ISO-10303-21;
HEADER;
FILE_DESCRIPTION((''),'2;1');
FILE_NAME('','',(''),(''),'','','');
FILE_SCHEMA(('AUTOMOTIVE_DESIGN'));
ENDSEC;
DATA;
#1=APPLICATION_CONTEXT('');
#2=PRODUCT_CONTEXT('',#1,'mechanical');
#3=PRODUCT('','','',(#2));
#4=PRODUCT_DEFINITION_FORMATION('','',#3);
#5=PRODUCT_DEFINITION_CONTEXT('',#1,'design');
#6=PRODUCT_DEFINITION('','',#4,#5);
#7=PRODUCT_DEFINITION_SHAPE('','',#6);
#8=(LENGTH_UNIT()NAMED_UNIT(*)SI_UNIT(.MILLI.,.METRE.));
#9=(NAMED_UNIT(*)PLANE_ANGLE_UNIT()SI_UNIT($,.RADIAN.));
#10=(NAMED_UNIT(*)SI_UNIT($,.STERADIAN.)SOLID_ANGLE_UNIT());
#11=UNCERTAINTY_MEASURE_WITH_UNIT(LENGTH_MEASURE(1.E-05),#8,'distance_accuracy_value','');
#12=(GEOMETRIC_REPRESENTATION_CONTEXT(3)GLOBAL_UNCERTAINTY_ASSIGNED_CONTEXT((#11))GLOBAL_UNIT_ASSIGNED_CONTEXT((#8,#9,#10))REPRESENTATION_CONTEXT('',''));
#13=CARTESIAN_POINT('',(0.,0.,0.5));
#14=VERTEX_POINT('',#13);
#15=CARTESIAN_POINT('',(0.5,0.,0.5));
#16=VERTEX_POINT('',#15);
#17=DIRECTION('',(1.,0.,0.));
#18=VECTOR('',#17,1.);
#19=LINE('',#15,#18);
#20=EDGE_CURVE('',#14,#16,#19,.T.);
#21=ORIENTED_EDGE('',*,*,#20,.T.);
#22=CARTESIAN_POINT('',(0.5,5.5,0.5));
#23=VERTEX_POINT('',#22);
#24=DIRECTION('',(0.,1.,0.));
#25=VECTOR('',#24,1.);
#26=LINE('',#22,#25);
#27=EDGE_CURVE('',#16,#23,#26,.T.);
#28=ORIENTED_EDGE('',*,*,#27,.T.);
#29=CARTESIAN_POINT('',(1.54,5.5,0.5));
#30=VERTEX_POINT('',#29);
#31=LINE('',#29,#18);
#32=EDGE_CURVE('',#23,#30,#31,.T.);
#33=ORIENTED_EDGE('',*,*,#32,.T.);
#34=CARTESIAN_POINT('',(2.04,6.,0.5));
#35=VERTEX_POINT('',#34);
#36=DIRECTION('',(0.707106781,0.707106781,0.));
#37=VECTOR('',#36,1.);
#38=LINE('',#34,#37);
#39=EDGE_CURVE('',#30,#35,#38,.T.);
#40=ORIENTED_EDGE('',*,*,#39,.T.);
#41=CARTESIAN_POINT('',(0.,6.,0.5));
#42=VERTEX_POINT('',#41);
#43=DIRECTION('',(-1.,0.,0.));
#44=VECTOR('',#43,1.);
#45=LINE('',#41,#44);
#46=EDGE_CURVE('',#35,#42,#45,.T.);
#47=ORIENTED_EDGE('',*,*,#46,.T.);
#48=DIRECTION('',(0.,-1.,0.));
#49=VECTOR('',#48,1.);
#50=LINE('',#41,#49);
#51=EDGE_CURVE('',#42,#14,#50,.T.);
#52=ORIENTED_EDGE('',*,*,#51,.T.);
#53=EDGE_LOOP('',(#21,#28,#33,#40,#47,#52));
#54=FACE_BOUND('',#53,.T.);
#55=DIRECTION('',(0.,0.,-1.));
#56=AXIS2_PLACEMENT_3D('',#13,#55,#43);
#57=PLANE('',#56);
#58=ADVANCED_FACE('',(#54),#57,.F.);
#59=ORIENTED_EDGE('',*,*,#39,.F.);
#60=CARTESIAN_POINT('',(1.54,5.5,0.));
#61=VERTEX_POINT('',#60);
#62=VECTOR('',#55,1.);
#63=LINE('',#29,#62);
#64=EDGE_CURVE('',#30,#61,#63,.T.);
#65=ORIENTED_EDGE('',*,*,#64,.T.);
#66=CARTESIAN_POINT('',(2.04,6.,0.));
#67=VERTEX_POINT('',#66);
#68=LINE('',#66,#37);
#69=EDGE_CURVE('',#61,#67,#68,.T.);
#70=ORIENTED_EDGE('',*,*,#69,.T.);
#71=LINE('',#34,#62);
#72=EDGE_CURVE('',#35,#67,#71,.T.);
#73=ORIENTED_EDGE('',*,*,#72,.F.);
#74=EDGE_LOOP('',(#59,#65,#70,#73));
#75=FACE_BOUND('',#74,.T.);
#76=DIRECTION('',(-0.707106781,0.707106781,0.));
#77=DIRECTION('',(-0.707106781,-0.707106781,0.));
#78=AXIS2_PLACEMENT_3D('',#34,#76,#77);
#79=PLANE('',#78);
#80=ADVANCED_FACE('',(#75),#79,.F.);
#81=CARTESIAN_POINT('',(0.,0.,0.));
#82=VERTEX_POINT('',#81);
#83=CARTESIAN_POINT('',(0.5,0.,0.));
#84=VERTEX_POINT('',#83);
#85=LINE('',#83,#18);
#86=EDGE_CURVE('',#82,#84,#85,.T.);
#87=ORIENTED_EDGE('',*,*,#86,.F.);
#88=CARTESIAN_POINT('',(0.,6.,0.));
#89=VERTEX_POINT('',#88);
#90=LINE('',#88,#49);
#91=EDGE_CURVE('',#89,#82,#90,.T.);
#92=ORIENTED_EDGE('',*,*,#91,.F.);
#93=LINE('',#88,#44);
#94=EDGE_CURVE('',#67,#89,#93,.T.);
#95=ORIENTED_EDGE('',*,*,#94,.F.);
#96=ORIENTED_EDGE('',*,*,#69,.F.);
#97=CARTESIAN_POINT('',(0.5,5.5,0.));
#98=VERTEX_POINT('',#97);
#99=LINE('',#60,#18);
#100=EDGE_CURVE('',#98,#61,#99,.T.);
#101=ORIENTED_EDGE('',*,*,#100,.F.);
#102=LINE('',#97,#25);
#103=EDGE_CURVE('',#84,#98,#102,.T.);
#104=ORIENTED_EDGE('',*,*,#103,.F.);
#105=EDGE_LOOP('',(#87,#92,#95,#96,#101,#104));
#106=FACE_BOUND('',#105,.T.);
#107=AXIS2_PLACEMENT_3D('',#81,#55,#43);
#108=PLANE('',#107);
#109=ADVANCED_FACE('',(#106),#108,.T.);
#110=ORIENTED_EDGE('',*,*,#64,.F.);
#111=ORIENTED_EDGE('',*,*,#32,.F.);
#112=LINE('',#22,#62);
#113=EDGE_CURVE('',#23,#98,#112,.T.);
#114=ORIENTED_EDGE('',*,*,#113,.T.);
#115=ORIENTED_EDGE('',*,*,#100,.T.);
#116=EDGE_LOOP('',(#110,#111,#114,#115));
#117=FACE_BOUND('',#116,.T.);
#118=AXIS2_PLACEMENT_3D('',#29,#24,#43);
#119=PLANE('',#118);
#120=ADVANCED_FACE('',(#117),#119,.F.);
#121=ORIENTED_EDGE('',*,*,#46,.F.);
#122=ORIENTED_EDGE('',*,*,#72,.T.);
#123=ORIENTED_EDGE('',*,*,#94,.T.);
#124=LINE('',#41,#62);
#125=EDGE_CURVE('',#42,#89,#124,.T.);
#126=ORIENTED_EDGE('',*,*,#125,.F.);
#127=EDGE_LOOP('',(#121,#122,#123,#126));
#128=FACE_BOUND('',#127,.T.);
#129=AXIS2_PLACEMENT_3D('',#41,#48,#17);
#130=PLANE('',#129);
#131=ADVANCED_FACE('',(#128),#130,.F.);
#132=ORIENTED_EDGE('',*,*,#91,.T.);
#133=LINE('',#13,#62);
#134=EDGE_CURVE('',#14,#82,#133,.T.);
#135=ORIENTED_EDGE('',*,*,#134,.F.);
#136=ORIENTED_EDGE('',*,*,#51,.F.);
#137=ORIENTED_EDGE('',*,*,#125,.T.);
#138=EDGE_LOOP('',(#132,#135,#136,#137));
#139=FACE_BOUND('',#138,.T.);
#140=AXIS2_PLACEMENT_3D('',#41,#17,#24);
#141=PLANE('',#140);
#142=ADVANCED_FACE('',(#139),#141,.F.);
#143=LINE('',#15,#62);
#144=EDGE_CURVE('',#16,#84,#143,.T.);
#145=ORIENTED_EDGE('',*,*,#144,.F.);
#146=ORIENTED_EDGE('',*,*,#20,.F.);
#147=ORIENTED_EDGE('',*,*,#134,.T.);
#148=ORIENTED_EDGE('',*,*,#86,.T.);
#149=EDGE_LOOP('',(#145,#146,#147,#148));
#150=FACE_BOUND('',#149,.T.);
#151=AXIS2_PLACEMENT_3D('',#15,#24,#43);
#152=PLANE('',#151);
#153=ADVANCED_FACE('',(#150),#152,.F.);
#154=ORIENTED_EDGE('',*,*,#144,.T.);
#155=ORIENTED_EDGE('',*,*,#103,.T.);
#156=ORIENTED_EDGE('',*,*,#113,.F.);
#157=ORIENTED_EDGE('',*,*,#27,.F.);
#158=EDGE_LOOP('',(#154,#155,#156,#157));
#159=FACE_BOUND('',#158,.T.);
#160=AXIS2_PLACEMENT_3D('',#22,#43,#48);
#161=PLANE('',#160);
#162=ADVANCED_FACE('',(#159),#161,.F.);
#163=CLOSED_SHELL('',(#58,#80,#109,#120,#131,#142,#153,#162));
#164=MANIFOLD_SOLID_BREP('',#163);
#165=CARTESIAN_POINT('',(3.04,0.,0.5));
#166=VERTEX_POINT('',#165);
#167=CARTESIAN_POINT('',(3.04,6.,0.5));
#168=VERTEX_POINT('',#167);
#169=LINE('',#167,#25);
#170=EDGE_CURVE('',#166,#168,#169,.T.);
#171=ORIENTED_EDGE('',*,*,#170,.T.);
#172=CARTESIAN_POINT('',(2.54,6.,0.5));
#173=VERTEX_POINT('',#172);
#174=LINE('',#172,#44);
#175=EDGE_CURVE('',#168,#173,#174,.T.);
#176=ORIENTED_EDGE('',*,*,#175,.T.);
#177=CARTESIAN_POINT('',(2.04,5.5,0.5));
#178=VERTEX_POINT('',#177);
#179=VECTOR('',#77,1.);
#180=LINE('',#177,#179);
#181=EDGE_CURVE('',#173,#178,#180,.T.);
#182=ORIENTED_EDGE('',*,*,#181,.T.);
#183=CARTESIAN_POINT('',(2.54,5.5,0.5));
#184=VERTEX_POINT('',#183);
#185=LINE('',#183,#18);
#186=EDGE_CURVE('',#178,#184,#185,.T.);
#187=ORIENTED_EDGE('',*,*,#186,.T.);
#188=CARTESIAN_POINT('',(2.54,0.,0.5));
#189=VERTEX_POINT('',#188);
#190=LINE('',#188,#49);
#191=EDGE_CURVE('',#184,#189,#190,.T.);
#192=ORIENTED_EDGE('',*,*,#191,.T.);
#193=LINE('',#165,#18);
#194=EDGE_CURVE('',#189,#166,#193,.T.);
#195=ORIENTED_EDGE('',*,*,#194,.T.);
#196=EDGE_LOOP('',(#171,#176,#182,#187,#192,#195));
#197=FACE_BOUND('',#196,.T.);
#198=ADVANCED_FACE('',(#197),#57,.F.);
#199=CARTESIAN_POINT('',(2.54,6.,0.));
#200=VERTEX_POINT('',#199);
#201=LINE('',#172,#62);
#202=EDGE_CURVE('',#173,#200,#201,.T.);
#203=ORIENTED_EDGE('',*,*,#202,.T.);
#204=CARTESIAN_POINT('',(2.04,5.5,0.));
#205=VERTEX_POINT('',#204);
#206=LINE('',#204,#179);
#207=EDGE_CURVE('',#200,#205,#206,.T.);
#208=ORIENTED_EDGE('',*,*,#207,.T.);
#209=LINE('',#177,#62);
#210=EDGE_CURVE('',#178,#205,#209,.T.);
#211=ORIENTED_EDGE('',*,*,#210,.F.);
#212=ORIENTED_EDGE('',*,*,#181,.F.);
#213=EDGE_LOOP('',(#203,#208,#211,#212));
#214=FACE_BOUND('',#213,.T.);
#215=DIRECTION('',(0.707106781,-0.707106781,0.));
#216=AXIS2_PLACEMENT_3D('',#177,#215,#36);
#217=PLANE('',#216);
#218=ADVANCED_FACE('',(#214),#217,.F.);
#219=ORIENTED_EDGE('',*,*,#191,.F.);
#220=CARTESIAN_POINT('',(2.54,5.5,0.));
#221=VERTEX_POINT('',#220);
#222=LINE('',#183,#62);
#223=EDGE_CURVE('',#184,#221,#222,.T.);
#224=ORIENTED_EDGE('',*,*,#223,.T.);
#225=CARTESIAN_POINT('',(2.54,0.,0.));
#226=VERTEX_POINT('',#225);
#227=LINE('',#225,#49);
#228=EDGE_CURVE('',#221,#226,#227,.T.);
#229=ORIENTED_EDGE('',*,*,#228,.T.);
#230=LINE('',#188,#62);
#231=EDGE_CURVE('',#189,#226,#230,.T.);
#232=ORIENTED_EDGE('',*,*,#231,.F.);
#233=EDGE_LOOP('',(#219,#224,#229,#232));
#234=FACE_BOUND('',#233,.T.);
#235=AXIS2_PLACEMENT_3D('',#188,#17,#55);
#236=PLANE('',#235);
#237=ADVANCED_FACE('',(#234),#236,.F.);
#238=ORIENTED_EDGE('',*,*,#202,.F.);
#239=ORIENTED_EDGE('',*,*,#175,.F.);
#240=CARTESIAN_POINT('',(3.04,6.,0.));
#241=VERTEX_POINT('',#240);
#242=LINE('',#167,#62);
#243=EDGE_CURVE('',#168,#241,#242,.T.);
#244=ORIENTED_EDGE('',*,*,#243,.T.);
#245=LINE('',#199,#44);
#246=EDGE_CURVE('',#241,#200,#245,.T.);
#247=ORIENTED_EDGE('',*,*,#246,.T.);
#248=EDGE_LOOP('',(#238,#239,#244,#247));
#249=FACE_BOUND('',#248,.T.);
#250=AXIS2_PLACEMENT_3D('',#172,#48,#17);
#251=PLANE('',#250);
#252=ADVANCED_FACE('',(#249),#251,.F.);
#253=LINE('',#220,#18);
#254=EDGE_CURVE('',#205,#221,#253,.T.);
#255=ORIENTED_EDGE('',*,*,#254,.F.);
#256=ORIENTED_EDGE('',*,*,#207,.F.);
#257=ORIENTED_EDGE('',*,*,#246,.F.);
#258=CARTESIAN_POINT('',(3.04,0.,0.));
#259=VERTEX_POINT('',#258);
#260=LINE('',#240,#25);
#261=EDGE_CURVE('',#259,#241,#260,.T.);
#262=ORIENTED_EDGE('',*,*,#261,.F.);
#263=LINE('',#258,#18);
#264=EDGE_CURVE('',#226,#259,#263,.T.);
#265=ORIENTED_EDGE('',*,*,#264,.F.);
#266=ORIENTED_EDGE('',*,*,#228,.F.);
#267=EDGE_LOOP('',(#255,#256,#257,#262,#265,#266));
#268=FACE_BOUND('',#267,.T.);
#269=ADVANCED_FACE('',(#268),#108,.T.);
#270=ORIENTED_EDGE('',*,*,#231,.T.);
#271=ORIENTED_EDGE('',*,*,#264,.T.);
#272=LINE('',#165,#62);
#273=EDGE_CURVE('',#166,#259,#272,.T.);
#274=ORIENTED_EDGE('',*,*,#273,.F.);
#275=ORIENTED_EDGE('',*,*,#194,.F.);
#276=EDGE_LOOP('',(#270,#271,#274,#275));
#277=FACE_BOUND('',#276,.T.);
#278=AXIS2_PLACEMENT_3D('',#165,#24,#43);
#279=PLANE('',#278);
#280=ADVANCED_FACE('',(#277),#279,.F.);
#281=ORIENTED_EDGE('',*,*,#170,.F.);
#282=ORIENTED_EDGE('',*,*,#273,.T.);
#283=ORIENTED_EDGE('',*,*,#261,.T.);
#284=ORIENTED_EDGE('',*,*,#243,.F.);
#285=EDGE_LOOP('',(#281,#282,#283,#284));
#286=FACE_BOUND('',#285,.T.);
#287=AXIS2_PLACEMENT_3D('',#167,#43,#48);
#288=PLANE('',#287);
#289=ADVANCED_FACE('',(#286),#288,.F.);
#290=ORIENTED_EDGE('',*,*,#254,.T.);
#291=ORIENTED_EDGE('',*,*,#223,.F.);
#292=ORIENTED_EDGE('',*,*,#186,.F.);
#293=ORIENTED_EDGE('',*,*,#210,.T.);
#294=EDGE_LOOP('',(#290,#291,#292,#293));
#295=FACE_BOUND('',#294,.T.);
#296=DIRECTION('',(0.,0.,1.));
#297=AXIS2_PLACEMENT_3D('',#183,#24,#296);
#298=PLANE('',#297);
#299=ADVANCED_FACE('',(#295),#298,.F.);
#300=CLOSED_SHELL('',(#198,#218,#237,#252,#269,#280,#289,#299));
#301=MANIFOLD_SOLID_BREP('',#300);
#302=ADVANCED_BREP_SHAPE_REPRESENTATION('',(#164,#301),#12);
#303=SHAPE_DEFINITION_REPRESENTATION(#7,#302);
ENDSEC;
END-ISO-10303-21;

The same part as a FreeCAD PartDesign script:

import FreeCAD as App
import Part
import Sketcher

V = App.Vector
Q = App.Units.Quantity


def add_polygon(sketch, points):
    """Adds a closed chain of lines whose ends are joined by coincident constraints."""
    first, n = sketch.GeometryCount, len(points)
    for a, b in zip(points, points[1:] + points[:1]):
        sketch.addGeometry(Part.LineSegment(App.Vector(*a, 0), App.Vector(*b, 0)), False)
    for i in range(n):
        sketch.addConstraint(Sketcher.Constraint("Coincident", first + i, 2, first + (i + 1) % n, 1))

doc = App.newDocument("Part")
body = doc.addObject("PartDesign::Body", "Body")

sketch1 = doc.addObject("Sketcher::SketchObject", "Sketch")
body.addObject(sketch1)
sketch1.AttachmentSupport = (doc.XY_Plane, [""])
sketch1.MapMode = "FlatFace"
add_polygon(sketch1, [(0, 6), (0, 0), (0.5, 0), (0.5, 5.5), (1.5, 5.5), (2, 6)])
sketch1.addConstraint([
    Sketcher.Constraint("Vertical", 0),
    Sketcher.Constraint("Horizontal", 1),
    Sketcher.Constraint("Vertical", 2),
    Sketcher.Constraint("Horizontal", 3),
    Sketcher.Constraint("Horizontal", 5),
    Sketcher.Constraint("Coincident", 0, 2, -1, 1),
    Sketcher.Constraint("DistanceY", 0, 2, 0, 1, Q("6 mm")),
    Sketcher.Constraint("Angle", 4, Q("45 deg")),
    Sketcher.Constraint("DistanceX", 1, 1, 1, 2, Q("0.5 mm")),
    Sketcher.Constraint("DistanceY", 2, 1, 2, 2, Q("5.5 mm")),
    Sketcher.Constraint("DistanceX", 3, 1, 3, 2, Q("1.04 mm")),
])
pad1 = doc.addObject("PartDesign::Pad", "Pad")
body.addObject(pad1)
pad1.Profile = sketch1
pad1.Length = 0.5
body2 = doc.addObject("PartDesign::Body", "Body001")

sketch2 = doc.addObject("Sketcher::SketchObject", "Sketch001")
body2.addObject(sketch2)
sketch2.AttachmentSupport = (doc.getObject("XY_Plane001"), [""])
sketch2.MapMode = "FlatFace"
add_polygon(sketch2, [(3, 6), (2.5, 6), (2, 5.5), (2.5, 5.5), (2.5, 0), (3, 0)])
sketch2.addConstraint([
    Sketcher.Constraint("Horizontal", 0),
    Sketcher.Constraint("Horizontal", 2),
    Sketcher.Constraint("Vertical", 3),
    Sketcher.Constraint("Horizontal", 4),
    Sketcher.Constraint("Vertical", 5),
    Sketcher.Constraint("PointOnObject", 3, 2, -1),
    Sketcher.Constraint("Vertical", 0, 2, 2, 2),
    Sketcher.Constraint("Equal", 0, 2),
    Sketcher.Constraint("DistanceY", 5, 1, 5, 2, Q("6 mm")),
    Sketcher.Constraint("Angle", 1, Q("-135 deg")),
    Sketcher.Constraint("DistanceX", 0, 2, 0, 1, Q("0.5 mm")),
    Sketcher.Constraint("DistanceX", -1, 1, 0, 2, Q("2.54 mm")),
])
pad2 = doc.addObject("PartDesign::Pad", "Pad001")
body2.addObject(pad2)
pad2.Profile = sketch2
pad2.Length = 0.5

doc.recompute()
